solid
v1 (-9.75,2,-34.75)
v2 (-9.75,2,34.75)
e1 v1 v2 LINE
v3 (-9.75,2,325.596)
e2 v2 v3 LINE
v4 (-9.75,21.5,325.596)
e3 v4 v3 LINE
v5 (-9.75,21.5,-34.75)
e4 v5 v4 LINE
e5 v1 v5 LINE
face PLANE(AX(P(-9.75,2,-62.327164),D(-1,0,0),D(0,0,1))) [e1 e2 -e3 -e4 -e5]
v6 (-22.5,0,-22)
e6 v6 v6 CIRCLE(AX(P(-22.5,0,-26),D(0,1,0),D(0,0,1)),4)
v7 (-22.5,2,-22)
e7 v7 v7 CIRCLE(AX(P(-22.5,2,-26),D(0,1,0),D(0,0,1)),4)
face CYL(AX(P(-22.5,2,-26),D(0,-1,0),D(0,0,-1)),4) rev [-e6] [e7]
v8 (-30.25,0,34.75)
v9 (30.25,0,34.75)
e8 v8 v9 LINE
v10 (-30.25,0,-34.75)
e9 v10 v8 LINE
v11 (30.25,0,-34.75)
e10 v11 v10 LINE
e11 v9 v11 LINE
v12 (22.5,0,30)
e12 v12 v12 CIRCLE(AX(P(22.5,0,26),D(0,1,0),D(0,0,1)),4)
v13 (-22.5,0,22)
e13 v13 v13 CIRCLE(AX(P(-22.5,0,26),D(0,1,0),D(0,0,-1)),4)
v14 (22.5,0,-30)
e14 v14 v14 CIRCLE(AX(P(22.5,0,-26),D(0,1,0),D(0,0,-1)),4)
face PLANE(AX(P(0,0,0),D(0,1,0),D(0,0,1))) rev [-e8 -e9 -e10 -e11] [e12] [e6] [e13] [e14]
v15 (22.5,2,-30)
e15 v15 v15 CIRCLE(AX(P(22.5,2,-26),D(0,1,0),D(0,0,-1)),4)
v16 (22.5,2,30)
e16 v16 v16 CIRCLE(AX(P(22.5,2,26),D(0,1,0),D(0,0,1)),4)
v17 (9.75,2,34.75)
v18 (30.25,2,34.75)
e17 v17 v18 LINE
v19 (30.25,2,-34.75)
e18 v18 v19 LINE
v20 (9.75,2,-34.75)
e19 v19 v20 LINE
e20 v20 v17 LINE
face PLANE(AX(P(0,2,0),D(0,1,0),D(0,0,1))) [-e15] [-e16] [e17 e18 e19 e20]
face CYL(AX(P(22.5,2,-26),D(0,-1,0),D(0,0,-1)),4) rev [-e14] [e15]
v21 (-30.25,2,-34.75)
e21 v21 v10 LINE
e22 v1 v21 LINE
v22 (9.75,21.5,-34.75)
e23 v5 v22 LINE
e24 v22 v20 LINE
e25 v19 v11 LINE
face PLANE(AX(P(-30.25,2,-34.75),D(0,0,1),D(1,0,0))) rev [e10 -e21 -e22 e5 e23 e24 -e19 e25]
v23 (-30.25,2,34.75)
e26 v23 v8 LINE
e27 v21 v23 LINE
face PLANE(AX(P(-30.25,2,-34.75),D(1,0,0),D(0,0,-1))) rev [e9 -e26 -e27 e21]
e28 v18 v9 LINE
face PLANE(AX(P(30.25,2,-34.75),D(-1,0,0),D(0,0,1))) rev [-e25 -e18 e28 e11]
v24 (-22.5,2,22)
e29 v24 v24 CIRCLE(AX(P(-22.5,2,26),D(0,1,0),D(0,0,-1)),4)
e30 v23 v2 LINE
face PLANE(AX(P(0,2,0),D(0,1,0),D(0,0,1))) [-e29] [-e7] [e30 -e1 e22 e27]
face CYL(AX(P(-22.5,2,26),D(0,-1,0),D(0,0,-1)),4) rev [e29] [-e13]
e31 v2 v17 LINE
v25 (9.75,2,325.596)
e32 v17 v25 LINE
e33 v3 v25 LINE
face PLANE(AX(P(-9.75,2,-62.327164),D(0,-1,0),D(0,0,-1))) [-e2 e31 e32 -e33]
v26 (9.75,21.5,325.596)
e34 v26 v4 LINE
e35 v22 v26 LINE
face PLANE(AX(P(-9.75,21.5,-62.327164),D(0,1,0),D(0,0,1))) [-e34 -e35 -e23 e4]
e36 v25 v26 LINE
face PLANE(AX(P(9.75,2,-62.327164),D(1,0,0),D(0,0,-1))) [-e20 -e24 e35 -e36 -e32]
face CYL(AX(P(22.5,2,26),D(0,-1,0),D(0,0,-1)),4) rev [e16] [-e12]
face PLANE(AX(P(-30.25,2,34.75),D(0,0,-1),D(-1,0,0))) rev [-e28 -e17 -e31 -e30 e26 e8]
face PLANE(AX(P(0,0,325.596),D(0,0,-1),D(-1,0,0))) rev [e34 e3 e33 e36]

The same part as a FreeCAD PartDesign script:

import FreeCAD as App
import Part
import Sketcher

doc = App.newDocument("Part")
params = doc.addObject("Spreadsheet::Sheet", "Params")
for row, (alias, value) in enumerate([
    ("sketch1_diameter", "8 mm"),
    ("sketch1_width", "60.5 mm"),
    ("sketch1_height", "69.5 mm"),
    ("pad1_length", "2 mm"),
    ("sketch2_width", "19.5 mm"),
    ("pad2_length", "325.596 mm"),
    ("pad2_length2", "34.75 mm"),
], start=1):
    params.set(f"A{row}", alias)
    params.set(f"B{row}", "=" + value)
    params.setAlias(f"B{row}", alias)

body = doc.addObject("PartDesign::Body", "Body")

sketch1 = body.newObject("Sketcher::SketchObject", "Sketch")
sketch1.AttachmentSupport = (doc.getObject("XZ_Plane"), [""])
sketch1.MapMode = "FlatFace"
sketch1.addGeometry([
    Part.LineSegment(App.Vector(-30.25, -34.75, 0), App.Vector(-30.25, 34.75, 0)),
    Part.LineSegment(App.Vector(-30.25, 34.75, 0), App.Vector(30.25, 34.75, 0)),
    Part.LineSegment(App.Vector(30.25, 34.75, 0), App.Vector(30.25, -34.75, 0)),
    Part.LineSegment(App.Vector(30.25, -34.75, 0), App.Vector(-30.25, -34.75, 0)),
    Part.Circle(App.Vector(-22.5, 26, 0), App.Vector(0, 0, 1), 4),
    Part.Circle(App.Vector(22.5, 26, 0), App.Vector(0, 0, 1), 4),
    Part.Circle(App.Vector(-22.5, -26, 0), App.Vector(0, 0, 1), 4),
    Part.Circle(App.Vector(22.5, -26, 0), App.Vector(0, 0, 1), 4),
], False)
sketch1.addConstraint([
    Sketcher.Constraint("Coincident", 0, 2, 1, 1),
    Sketcher.Constraint("Coincident", 1, 2, 2, 1),
    Sketcher.Constraint("Coincident", 2, 2, 3, 1),
    Sketcher.Constraint("Coincident", 3, 2, 0, 1),
    Sketcher.Constraint("Vertical", 0),
    Sketcher.Constraint("Horizontal", 1),
    Sketcher.Constraint("Vertical", 2),
    Sketcher.Constraint("Horizontal", 3),
    Sketcher.Constraint("Equal", 4, 5),
    Sketcher.Constraint("Equal", 5, 6),
    Sketcher.Constraint("Equal", 6, 7),
    Sketcher.Constraint("Symmetric", 5, 3, 6, 3, -1, 1),
    Sketcher.Constraint("Symmetric", 4, 3, 7, 3, -1, 1),
    Sketcher.Constraint("Symmetric", 0, 2, 2, 2, -1, 1),
    Sketcher.Constraint("Symmetric", 4, 3, 5, 3, -2),
    Sketcher.Constraint("Diameter", 4, 8.0),
    Sketcher.Constraint("DistanceX", 1, 1, 1, 2, 60.5),
    Sketcher.Constraint("DistanceY", 0, 1, 0, 2, 69.5),
    Sketcher.Constraint("DistanceY", -1, 1, 4, 3, 26.0),
    Sketcher.Constraint("DistanceX", 4, 3, 5, 3, 45.0),
])
sketch1.setExpression("Constraints[15]", "Params.sketch1_diameter")
sketch1.setExpression("Constraints[16]", "Params.sketch1_width")
sketch1.setExpression("Constraints[17]", "Params.sketch1_height")
pad1 = body.newObject("PartDesign::Pad", "Pad")
pad1.Profile = sketch1
pad1.setExpression("Length", "Params.pad1_length")
pad1.Reversed = True

sketch2 = body.newObject("Sketcher::SketchObject", "Sketch001")
sketch2.AttachmentSupport = (doc.getObject("XY_Plane"), [""])
sketch2.MapMode = "FlatFace"
sketch2.addGeometry([
    Part.LineSegment(App.Vector(-9.75, 21.5, 0), App.Vector(-9.75, 2, 0)),
    Part.LineSegment(App.Vector(-9.75, 2, 0), App.Vector(9.75, 2, 0)),
    Part.LineSegment(App.Vector(9.75, 2, 0), App.Vector(9.75, 21.5, 0)),
    Part.LineSegment(App.Vector(9.75, 21.5, 0), App.Vector(-9.75, 21.5, 0)),
], False)
sketch2.addConstraint([
    Sketcher.Constraint("Coincident", 0, 2, 1, 1),
    Sketcher.Constraint("Coincident", 1, 2, 2, 1),
    Sketcher.Constraint("Coincident", 2, 2, 3, 1),
    Sketcher.Constraint("Coincident", 3, 2, 0, 1),
    Sketcher.Constraint("Vertical", 0),
    Sketcher.Constraint("Horizontal", 1),
    Sketcher.Constraint("Vertical", 2),
    Sketcher.Constraint("Horizontal", 3),
    Sketcher.Constraint("Equal", 3, 0),
    Sketcher.Constraint("DistanceX", 1, 1, 1, 2, 19.5),
    Sketcher.Constraint("DistanceY", -1, 1, 0, 2, 2.0),
    Sketcher.Constraint("DistanceX", 0, 2, -1, 1, 9.75),
])
sketch2.setExpression("Constraints[9]", "Params.sketch2_width")
pad2 = body.newObject("PartDesign::Pad", "Pad001")
pad2.Profile = sketch2
pad2.Type = "TwoLengths"
pad2.setExpression("Length", "Params.pad2_length")
pad2.setExpression("Length2", "Params.pad2_length2")

doc.recompute()
